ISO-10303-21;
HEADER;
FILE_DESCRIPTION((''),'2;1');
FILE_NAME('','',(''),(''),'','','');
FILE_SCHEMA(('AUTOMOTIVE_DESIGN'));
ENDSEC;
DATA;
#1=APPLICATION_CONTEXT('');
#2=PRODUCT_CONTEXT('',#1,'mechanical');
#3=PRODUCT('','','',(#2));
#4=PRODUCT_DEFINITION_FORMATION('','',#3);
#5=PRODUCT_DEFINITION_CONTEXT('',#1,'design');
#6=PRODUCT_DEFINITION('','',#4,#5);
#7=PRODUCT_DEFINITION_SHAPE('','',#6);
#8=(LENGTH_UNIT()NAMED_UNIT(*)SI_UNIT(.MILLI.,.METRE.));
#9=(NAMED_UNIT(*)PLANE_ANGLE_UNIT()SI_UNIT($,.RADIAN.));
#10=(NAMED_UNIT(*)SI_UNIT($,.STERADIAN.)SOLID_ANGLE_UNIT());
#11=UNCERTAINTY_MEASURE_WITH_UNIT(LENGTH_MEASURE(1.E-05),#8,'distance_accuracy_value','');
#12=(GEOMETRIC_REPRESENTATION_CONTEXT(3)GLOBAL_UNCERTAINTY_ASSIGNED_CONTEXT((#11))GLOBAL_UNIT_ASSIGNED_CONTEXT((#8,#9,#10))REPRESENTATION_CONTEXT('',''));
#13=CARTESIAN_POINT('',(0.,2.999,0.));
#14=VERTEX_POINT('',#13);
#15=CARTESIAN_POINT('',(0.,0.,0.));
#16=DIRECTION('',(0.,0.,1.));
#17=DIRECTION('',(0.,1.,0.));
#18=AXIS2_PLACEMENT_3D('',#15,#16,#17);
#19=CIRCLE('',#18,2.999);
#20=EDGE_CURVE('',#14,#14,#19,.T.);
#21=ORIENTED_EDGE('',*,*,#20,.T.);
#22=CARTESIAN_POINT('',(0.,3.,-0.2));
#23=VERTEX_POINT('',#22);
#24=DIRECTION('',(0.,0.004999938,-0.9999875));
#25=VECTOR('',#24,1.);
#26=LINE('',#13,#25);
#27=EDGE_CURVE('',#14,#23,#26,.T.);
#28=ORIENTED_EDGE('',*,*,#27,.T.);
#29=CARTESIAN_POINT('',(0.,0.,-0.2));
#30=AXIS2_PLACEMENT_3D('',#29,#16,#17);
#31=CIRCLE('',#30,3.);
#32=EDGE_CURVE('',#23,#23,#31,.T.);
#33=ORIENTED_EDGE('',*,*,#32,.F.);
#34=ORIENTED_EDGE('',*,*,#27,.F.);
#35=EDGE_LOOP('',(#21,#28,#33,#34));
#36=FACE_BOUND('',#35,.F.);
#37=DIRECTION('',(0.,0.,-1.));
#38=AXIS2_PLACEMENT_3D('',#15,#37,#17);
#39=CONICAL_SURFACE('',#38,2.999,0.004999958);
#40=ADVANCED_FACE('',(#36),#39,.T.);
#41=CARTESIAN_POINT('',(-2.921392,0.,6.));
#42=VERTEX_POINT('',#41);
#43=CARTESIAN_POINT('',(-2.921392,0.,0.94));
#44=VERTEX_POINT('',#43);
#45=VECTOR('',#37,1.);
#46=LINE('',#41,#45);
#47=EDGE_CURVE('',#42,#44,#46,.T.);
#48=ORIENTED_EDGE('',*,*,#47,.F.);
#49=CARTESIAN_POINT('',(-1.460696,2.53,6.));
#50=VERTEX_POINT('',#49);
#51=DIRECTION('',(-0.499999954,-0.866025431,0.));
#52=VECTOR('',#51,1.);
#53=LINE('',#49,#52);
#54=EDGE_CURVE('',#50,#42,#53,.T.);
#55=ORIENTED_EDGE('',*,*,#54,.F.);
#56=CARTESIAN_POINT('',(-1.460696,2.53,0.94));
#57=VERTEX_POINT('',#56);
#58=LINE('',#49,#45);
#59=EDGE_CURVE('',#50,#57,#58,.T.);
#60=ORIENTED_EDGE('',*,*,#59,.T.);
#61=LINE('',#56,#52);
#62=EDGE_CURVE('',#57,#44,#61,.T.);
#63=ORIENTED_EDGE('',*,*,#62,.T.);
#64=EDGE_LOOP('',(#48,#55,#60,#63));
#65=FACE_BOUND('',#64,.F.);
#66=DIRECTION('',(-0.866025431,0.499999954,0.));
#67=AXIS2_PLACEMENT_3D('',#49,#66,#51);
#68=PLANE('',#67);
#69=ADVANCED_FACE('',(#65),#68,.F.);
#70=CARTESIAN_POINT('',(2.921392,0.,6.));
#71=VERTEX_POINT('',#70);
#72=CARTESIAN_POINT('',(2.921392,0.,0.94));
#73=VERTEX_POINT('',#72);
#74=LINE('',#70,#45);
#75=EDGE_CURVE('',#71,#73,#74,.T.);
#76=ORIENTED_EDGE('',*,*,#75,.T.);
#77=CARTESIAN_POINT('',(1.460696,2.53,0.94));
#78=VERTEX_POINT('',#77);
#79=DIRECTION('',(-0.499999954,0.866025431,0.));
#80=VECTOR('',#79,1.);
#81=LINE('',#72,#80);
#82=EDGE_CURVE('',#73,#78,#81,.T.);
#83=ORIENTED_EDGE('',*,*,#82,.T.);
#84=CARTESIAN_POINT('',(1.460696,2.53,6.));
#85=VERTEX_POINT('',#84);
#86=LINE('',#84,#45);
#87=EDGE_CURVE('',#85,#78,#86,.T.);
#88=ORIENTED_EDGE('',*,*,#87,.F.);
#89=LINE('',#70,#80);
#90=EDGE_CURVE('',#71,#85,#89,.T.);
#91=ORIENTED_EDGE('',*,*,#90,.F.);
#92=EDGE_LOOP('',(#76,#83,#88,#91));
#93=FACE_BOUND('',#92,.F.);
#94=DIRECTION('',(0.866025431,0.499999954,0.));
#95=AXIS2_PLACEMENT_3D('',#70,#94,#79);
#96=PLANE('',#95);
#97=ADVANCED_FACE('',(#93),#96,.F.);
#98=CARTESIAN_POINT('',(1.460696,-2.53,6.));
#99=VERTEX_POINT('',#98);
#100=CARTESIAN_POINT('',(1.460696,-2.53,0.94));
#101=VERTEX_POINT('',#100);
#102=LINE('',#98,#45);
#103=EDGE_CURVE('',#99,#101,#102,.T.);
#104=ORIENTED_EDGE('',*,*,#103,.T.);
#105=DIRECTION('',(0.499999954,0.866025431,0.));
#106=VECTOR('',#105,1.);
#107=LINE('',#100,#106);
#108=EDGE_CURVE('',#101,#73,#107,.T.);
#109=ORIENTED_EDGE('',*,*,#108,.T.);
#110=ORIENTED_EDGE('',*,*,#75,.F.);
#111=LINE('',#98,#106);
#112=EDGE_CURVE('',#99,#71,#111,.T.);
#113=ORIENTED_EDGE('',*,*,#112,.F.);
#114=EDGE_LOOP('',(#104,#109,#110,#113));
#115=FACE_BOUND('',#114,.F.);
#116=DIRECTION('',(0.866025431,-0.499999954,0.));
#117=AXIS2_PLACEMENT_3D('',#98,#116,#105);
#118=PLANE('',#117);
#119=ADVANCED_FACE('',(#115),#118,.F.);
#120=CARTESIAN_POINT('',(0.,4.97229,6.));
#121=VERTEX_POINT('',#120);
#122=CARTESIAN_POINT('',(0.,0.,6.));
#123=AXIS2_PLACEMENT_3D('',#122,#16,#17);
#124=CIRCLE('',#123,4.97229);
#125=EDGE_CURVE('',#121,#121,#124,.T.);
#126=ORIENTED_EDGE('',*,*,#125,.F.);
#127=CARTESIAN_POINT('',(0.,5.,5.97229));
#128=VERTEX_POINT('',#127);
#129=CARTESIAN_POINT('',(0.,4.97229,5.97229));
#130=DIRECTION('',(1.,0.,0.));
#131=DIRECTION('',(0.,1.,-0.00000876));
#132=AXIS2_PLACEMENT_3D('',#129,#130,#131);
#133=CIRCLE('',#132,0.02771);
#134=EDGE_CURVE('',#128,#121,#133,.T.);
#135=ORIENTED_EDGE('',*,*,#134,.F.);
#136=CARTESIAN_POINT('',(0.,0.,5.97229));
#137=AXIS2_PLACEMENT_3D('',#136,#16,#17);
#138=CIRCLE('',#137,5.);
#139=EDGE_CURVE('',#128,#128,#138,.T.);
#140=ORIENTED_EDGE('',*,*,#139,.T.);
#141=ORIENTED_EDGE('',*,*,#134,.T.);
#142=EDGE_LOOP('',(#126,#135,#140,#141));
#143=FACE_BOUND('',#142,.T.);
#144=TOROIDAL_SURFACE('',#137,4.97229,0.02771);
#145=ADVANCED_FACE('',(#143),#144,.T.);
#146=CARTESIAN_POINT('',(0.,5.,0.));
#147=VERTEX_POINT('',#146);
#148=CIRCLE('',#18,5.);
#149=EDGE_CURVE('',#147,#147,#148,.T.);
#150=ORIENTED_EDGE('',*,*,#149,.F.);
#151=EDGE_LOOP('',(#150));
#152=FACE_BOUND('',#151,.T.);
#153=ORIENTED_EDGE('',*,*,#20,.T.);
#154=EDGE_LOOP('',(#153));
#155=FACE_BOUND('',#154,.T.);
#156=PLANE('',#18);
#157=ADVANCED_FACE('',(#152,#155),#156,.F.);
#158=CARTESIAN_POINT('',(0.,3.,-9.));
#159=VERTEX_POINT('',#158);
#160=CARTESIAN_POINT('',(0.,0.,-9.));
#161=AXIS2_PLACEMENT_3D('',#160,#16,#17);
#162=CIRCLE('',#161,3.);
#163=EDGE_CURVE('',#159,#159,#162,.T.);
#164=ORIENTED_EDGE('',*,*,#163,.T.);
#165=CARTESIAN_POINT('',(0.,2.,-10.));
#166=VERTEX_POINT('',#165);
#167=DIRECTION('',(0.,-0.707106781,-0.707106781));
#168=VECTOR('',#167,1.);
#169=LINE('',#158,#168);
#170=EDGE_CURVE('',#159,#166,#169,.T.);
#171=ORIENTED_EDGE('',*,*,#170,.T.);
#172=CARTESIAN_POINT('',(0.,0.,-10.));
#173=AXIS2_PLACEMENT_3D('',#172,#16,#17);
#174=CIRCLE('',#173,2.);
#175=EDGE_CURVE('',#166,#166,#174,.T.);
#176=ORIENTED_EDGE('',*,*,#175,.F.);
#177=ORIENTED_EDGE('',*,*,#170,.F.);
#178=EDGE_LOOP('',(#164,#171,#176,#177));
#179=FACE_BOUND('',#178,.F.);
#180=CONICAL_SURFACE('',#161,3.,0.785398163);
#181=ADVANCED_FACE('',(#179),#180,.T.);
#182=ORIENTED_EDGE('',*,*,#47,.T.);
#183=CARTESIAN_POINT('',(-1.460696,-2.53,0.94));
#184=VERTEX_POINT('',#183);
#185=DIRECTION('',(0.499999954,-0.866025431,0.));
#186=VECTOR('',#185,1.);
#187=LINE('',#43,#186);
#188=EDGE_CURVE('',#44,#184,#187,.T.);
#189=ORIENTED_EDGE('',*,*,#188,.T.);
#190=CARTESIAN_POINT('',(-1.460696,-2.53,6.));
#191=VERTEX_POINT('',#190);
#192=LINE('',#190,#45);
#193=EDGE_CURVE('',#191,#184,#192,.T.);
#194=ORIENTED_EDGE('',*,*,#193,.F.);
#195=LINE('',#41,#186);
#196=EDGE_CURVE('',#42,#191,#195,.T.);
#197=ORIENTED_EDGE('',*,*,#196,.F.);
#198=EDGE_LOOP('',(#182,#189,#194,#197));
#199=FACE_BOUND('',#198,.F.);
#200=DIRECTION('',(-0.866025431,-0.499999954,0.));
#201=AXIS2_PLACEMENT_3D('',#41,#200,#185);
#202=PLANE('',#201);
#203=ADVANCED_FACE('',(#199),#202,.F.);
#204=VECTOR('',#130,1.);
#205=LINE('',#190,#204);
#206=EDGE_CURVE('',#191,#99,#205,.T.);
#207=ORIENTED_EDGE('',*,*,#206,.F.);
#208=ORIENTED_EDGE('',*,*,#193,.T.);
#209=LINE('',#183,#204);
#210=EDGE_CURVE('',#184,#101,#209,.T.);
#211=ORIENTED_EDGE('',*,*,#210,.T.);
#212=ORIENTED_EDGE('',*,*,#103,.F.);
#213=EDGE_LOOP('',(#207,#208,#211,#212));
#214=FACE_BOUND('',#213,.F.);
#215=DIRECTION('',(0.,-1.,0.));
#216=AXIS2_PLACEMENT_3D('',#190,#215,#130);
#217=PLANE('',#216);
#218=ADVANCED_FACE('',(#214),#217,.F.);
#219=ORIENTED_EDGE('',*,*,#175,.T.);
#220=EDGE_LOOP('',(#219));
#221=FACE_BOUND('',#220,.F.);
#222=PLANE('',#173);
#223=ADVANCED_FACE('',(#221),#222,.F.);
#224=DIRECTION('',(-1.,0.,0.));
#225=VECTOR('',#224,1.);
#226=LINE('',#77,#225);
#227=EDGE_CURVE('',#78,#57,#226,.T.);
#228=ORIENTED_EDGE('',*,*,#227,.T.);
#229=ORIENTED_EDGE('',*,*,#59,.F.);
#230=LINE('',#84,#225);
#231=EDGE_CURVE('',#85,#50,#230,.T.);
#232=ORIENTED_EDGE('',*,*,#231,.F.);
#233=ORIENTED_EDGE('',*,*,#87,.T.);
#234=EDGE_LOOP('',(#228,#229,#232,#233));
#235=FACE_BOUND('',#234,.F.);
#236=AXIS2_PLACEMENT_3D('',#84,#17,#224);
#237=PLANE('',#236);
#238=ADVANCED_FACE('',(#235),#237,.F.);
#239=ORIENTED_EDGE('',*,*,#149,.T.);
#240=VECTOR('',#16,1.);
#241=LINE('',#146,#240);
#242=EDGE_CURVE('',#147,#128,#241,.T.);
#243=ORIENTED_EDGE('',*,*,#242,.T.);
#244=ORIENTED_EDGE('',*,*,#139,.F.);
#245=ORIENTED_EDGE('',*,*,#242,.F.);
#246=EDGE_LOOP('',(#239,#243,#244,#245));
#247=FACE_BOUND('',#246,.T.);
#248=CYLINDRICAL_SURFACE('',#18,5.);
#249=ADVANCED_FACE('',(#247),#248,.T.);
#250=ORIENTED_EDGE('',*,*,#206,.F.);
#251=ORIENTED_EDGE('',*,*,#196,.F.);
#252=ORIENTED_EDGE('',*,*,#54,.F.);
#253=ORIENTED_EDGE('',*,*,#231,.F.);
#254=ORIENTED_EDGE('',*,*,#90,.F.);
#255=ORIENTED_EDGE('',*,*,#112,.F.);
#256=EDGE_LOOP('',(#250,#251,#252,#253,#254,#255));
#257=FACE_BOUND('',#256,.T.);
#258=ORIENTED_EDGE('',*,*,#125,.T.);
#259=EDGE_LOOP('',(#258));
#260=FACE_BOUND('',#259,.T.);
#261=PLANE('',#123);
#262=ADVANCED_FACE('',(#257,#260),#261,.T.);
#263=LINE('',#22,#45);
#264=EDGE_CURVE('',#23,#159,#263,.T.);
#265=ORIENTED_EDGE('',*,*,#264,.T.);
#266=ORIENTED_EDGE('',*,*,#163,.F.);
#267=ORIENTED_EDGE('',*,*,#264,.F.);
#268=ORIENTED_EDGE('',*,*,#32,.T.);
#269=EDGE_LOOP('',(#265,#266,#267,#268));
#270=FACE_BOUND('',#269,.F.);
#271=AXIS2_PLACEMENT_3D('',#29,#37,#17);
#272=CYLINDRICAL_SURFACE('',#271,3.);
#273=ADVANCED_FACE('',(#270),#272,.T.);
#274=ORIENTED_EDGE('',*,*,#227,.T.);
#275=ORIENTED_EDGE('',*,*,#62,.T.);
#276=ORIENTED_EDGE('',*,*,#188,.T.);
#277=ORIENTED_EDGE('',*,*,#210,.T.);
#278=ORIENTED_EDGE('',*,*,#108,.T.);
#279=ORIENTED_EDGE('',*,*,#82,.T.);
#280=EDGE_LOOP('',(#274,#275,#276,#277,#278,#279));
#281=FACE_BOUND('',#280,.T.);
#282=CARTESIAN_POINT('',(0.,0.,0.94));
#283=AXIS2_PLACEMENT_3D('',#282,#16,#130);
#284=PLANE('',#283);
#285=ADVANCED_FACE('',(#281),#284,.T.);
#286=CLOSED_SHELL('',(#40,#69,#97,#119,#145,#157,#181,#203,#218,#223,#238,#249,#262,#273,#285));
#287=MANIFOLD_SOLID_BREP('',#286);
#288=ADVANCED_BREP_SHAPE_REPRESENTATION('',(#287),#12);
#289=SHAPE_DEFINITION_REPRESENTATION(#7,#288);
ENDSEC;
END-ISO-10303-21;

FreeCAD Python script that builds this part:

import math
import FreeCAD as App
import Part
import Sketcher
Q = App.Units.Quantity


def add_polygon(sketch, points):
    """Adds a closed chain of lines whose ends are joined by coincident constraints."""
    first, n = sketch.GeometryCount, len(points)
    for a, b in zip(points, points[1:] + points[:1]):
        sketch.addGeometry(Part.LineSegment(App.Vector(*a, 0), App.Vector(*b, 0)), False)
    for i in range(n):
        sketch.addConstraint(Sketcher.Constraint("Coincident", first + i, 2, first + (i + 1) % n, 1))

doc = App.newDocument("Part")
body = doc.addObject("PartDesign::Body", "Body")

sketch1 = body.newObject("Sketcher::SketchObject", "Sketch")
sketch1.AttachmentSupport = (doc.getObject("YZ_Plane"), [""])
sketch1.MapMode = "FlatFace"
sketch1.addGeometry(Part.LineSegment(App.Vector(2.999, 0, 0), App.Vector(5, 0, 0)), False)
sketch1.addGeometry(Part.LineSegment(App.Vector(5, 0, 0), App.Vector(5, 5.97229, 0)), False)
sketch1.addGeometry(Part.ArcOfCircle(Part.Circle(App.Vector(4.97229, 5.97229, 0), App.Vector(0, 0, 1), 0.02771), math.radians(-0.000502), math.radians(90.000502)), False)
sketch1.addGeometry(Part.LineSegment(App.Vector(4.97229, 6, 0), App.Vector(0, 6, 0)), False)
sketch1.addGeometry(Part.LineSegment(App.Vector(0, 6, 0), App.Vector(0, -10, 0)), False)
sketch1.addGeometry(Part.LineSegment(App.Vector(0, -10, 0), App.Vector(2, -10, 0)), False)
sketch1.addGeometry(Part.LineSegment(App.Vector(2, -10, 0), App.Vector(3, -9, 0)), False)
sketch1.addGeometry(Part.LineSegment(App.Vector(3, -9, 0), App.Vector(3, -0.2, 0)), False)
sketch1.addGeometry(Part.LineSegment(App.Vector(3, -0.2, 0), App.Vector(2.999, 0, 0)), False)
sketch1.addConstraint(Sketcher.Constraint("Coincident", 0, 2, 1, 1))
sketch1.addConstraint(Sketcher.Constraint("Coincident", 1, 2, 2, 1))
sketch1.addConstraint(Sketcher.Constraint("Coincident", 2, 2, 3, 1))
sketch1.addConstraint(Sketcher.Constraint("Coincident", 3, 2, 4, 1))
sketch1.addConstraint(Sketcher.Constraint("Coincident", 4, 2, 5, 1))
sketch1.addConstraint(Sketcher.Constraint("Coincident", 5, 2, 6, 1))
sketch1.addConstraint(Sketcher.Constraint("Coincident", 6, 2, 7, 1))
sketch1.addConstraint(Sketcher.Constraint("Coincident", 7, 2, 8, 1))
sketch1.addConstraint(Sketcher.Constraint("Coincident", 8, 2, 0, 1))
sketch1.addConstraint(Sketcher.Constraint("Horizontal", 0))
sketch1.addConstraint(Sketcher.Constraint("Vertical", 1))
sketch1.addConstraint(Sketcher.Constraint("Horizontal", 3))
sketch1.addConstraint(Sketcher.Constraint("Vertical", 4))
sketch1.addConstraint(Sketcher.Constraint("Horizontal", 5))
sketch1.addConstraint(Sketcher.Constraint("Vertical", 7))
sketch1.addConstraint(Sketcher.Constraint("PointOnObject", 0, 2, -1))
sketch1.addConstraint(Sketcher.Constraint("PointOnObject", 3, 2, -2))
sketch1.addConstraint(Sketcher.Constraint("Horizontal", 2, 3, 1, 2))
sketch1.addConstraint(Sketcher.Constraint("DistanceX", 5, 1, 5, 2, 2.0))
sketch1.addConstraint(Sketcher.Constraint("DistanceY", 4, 2, 4, 1, 16.0))
sketch1.addConstraint(Sketcher.Constraint("Angle", 6, Q("45 deg")))
sketch1.addConstraint(Sketcher.Constraint("DistanceY", 7, 1, 7, 2, 8.8))
sketch1.addConstraint(Sketcher.Constraint("DistanceX", -1, 1, 0, 2, 5.0))
sketch1.addConstraint(Sketcher.Constraint("DistanceY", -1, 1, 2, 2, 6.0))
sketch1.addConstraint(Sketcher.Constraint("DistanceX", -1, 1, 6, 2, 3.0))
sketch1.addConstraint(Sketcher.Constraint("DistanceX", 0, 1, 0, 2, 2.001))
sketch1.addConstraint(Sketcher.Constraint("Radius", 2, 0.02771))
sketch1.addConstraint(Sketcher.Constraint("DistanceX", 3, 2, 3, 1, 4.97229))
revolution = body.newObject("PartDesign::Revolution", "Revolution")
revolution.Profile = sketch1
revolution.ReferenceAxis = (sketch1, ["V_Axis"])
revolution.Angle = 360

sketch2 = body.newObject("Sketcher::SketchObject", "Sketch001")
sketch2.AttachmentSupport = (doc.getObject("XY_Plane"), [""])
sketch2.MapMode = "FlatFace"
sketch2.AttachmentOffset = App.Placement(App.Vector(0, 0, 6), App.Rotation())
add_polygon(sketch2, [(2.921392, 0), (1.460696, 2.53), (-1.460696, 2.53), (-2.921392, 0), (-1.460696, -2.53), (1.460696, -2.53)])
sketch2.addConstraint(Sketcher.Constraint("Horizontal", 1))
sketch2.addConstraint(Sketcher.Constraint("Horizontal", 4))
sketch2.addConstraint(Sketcher.Constraint("Symmetric", 0, 2, 3, 2, -1, 1))
sketch2.addConstraint(Sketcher.Constraint("Symmetric", 2, 2, 5, 2, -1, 1))
sketch2.addConstraint(Sketcher.Constraint("PointOnObject", 2, 2, -1))
sketch2.addConstraint(Sketcher.Constraint("Parallel", 2, 5))
sketch2.addConstraint(Sketcher.Constraint("Vertical", 1, 2, 3, 2))
sketch2.addConstraint(Sketcher.Constraint("Angle", 0, Q("119.999997 deg")))
sketch2.addConstraint(Sketcher.Constraint("DistanceY", -1, 1, 0, 2, 2.53))
sketch2.addConstraint(Sketcher.Constraint("DistanceX", 1, 2, 1, 1, 2.921392))
pocket1 = body.newObject("PartDesign::Pocket", "Pocket")
pocket1.Profile = sketch2
pocket1.Length = 5.06

doc.recompute()
